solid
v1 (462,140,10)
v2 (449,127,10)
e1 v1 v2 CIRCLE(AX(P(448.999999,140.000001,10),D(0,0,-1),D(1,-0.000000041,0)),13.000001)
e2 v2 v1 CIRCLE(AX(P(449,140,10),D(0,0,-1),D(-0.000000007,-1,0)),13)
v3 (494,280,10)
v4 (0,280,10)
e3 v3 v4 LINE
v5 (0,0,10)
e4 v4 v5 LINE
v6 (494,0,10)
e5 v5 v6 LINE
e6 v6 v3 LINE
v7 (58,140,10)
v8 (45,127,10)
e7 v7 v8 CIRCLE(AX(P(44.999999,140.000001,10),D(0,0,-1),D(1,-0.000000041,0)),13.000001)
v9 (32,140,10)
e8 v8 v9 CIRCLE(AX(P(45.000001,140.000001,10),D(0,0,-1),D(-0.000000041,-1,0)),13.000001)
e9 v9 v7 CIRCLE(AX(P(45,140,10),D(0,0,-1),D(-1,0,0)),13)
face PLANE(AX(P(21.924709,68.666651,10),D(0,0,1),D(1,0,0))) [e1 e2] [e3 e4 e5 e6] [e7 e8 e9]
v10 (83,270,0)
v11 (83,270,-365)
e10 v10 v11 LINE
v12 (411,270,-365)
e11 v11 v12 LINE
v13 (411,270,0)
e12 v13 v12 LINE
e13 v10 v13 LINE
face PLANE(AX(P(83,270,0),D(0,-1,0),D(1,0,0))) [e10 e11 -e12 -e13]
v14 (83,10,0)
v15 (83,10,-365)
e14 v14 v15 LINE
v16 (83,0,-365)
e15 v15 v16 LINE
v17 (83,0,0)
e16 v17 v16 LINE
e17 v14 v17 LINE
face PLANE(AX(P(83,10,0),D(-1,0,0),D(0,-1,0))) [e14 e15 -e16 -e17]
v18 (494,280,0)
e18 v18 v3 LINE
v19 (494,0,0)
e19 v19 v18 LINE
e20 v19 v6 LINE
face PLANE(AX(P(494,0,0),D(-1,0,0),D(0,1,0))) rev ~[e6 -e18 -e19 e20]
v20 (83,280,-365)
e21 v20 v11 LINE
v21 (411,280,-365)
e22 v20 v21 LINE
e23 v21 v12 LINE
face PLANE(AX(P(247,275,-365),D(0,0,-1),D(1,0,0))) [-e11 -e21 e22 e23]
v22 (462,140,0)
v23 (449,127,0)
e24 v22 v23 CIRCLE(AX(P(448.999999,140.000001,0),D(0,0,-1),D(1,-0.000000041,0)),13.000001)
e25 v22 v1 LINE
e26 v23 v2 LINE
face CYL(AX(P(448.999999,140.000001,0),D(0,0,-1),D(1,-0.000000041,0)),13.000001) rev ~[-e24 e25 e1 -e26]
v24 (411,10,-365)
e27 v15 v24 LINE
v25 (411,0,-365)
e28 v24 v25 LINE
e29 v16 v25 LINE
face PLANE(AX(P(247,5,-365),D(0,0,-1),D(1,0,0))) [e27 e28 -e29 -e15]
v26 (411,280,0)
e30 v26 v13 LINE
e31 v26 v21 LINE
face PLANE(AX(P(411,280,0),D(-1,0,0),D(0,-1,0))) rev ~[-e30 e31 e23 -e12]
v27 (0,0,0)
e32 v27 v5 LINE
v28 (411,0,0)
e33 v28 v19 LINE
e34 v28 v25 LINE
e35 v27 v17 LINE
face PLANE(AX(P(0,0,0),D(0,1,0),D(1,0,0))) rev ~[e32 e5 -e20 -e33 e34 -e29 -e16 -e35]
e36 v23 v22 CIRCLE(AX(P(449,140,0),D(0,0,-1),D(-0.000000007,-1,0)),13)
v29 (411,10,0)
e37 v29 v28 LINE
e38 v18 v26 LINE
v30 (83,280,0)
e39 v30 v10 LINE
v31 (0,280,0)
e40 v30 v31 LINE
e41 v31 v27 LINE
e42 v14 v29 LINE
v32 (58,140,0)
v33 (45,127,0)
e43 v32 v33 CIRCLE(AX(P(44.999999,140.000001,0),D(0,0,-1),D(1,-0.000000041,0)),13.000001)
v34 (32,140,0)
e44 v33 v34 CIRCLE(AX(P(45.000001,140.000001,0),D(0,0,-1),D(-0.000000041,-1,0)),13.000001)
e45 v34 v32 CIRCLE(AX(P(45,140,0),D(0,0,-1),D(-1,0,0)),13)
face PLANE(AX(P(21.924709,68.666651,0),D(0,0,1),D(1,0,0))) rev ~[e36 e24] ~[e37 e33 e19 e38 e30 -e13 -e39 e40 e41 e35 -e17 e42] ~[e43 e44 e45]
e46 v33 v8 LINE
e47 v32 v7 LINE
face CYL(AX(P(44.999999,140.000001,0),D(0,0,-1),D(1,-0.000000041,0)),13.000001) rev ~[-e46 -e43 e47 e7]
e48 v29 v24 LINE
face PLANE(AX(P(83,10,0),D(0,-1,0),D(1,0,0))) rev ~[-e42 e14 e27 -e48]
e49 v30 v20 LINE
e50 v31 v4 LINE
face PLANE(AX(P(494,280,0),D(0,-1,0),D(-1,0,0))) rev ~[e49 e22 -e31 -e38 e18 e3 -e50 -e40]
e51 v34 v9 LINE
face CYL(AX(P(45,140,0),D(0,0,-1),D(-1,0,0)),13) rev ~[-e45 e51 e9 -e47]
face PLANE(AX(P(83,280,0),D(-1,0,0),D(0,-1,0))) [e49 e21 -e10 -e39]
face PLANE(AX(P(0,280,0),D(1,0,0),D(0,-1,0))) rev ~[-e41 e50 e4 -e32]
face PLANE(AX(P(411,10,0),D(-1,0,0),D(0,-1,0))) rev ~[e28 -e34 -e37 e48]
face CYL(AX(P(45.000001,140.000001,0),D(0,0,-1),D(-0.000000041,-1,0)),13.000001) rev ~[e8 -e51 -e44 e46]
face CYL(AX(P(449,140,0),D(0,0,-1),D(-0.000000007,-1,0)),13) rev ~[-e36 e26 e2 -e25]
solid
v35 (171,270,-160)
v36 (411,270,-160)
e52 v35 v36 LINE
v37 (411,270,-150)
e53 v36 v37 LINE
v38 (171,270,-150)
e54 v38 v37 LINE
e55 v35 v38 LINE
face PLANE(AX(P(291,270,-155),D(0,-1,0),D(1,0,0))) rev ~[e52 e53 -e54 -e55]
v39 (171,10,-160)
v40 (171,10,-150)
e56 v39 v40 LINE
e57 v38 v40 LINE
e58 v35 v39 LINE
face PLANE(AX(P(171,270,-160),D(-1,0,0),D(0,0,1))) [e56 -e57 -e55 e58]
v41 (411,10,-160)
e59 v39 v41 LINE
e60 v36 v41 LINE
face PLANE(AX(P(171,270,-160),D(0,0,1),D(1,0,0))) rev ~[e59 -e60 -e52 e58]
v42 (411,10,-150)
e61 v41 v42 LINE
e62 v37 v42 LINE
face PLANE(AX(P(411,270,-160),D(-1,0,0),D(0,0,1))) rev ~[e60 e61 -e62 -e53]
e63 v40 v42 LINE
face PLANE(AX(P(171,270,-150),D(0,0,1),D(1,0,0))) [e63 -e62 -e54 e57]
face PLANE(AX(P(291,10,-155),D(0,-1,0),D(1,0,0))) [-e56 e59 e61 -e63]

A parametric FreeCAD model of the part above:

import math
import FreeCAD as App
import Part
import Sketcher

V = App.Vector

doc = App.newDocument("Part")
body = doc.addObject("PartDesign::Body", "Body")

# Sketch on XY plane
sketch1 = doc.addObject("Sketcher::SketchObject", "Sketch")
body.addObject(sketch1)
sketch1.AttachmentSupport = (doc.XY_Plane, [""])
sketch1.MapMode = "FlatFace"
sketch1.addGeometry([
    Part.LineSegment(V(0, 0, 0), V(494, 0, 0)),  # 0
    Part.LineSegment(V(494, 0, 0), V(494, 280, 0)),  # 1
    Part.LineSegment(V(494, 280, 0), V(0, 280, 0)),  # 2
    Part.LineSegment(V(0, 280, 0), V(0, 0, 0)),  # 3
    Part.ArcOfCircle(Part.Circle(V(449, 140, 0), V(0, 0, 1), 13), math.radians(0), math.radians(270)),  # 4
    Part.ArcOfCircle(Part.Circle(V(448.999999, 140.000001, 0), V(0, 0, 1), 13.000001), math.radians(-89.999998), math.radians(-0.000002)),  # 5
    Part.ArcOfCircle(Part.Circle(V(45.000001, 140.000001, 0), V(0, 0, 1), 13.000001), math.radians(-179.999998), math.radians(-90.000002)),  # 6
    Part.ArcOfCircle(Part.Circle(V(45, 140, 0), V(0, 0, 1), 13), math.radians(0), math.radians(180)),  # 7
    Part.ArcOfCircle(Part.Circle(V(44.999999, 140.000001, 0), V(0, 0, 1), 13.000001), math.radians(-89.999998), math.radians(-0.000002)),  # 8
], False)
sketch1.addConstraint([
    Sketcher.Constraint("Coincident", 0, 2, 1, 1),
    Sketcher.Constraint("Coincident", 1, 2, 2, 1),
    Sketcher.Constraint("Coincident", 2, 2, 3, 1),
    Sketcher.Constraint("Coincident", 3, 2, 0, 1),
    Sketcher.Constraint("Tangent", 4, 1, 5, 2),
    Sketcher.Constraint("Coincident", 5, 1, 4, 2),
    Sketcher.Constraint("Tangent", 6, 1, 7, 2),
    Sketcher.Constraint("Tangent", 7, 1, 8, 2),
    Sketcher.Constraint("Tangent", 8, 1, 6, 2),
    Sketcher.Constraint("Horizontal", 0),
    Sketcher.Constraint("Vertical", 1),
    Sketcher.Constraint("Horizontal", 2),
    Sketcher.Constraint("Vertical", 3),
    Sketcher.Constraint("Coincident", 3, 2, -1, 1),
    Sketcher.Constraint("Equal", 5, 6),
    Sketcher.Constraint("Horizontal", 5, 3, 6, 3),
    Sketcher.Constraint("Horizontal", 8, 3, 4, 1),
    Sketcher.Constraint("Horizontal", 4, 1, 6, 1),
    Sketcher.Constraint("Horizontal", 6, 1, 7, 1),
    Sketcher.Constraint("Vertical", 4, 3, 5, 1),
    Sketcher.Constraint("Vertical", 7, 3, 8, 1),
    Sketcher.Constraint("Radius", 4, 13.0),
    Sketcher.Constraint("DistanceX", 0, 1, 0, 2, 494.0),
    Sketcher.Constraint("DistanceY", 1, 1, 1, 2, 280.0),
    Sketcher.Constraint("DistanceX", -1, 1, 4, 3, 449.0),
    Sketcher.Constraint("DistanceY", -1, 1, 4, 3, 140.0),
    Sketcher.Constraint("DistanceX", -1, 1, 6, 3, 45.000001),
])
pad1 = doc.addObject("PartDesign::Pad", "Pad")
body.addObject(pad1)
pad1.Profile = sketch1
pad1.Length = 10

# Sketch on XY plane
sketch2 = doc.addObject("Sketcher::SketchObject", "Sketch001")
body.addObject(sketch2)
sketch2.AttachmentSupport = (doc.XY_Plane, [""])
sketch2.MapMode = "FlatFace"
sketch2.addGeometry([
    Part.LineSegment(V(83, 270, 0), V(83, 280, 0)),  # 0
    Part.LineSegment(V(83, 280, 0), V(411, 280, 0)),  # 1
    Part.LineSegment(V(411, 280, 0), V(411, 270, 0)),  # 2
    Part.LineSegment(V(411, 270, 0), V(83, 270, 0)),  # 3
    Part.LineSegment(V(83, 0, 0), V(83, 10, 0)),  # 4
    Part.LineSegment(V(83, 10, 0), V(411, 10, 0)),  # 5
    Part.LineSegment(V(411, 10, 0), V(411, 0, 0)),  # 6
    Part.LineSegment(V(411, 0, 0), V(83, 0, 0)),  # 7
], False)
sketch2.addConstraint([
    Sketcher.Constraint("Coincident", 0, 2, 1, 1),
    Sketcher.Constraint("Coincident", 1, 2, 2, 1),
    Sketcher.Constraint("Coincident", 2, 2, 3, 1),
    Sketcher.Constraint("Coincident", 3, 2, 0, 1),
    Sketcher.Constraint("Coincident", 4, 2, 5, 1),
    Sketcher.Constraint("Coincident", 5, 2, 6, 1),
    Sketcher.Constraint("Coincident", 6, 2, 7, 1),
    Sketcher.Constraint("Coincident", 7, 2, 4, 1),
    Sketcher.Constraint("Vertical", 0),
    Sketcher.Constraint("Horizontal", 1),
    Sketcher.Constraint("Vertical", 2),
    Sketcher.Constraint("Horizontal", 3),
    Sketcher.Constraint("Vertical", 4),
    Sketcher.Constraint("Horizontal", 5),
    Sketcher.Constraint("Vertical", 6),
    Sketcher.Constraint("Horizontal", 7),
    Sketcher.Constraint("PointOnObject", 6, 2, -1),
    Sketcher.Constraint("Vertical", 3, 2, 4, 2),
    Sketcher.Constraint("Vertical", 2, 2, 5, 2),
    Sketcher.Constraint("Equal", 2, 4),
    Sketcher.Constraint("DistanceX", 1, 1, 1, 2, 328.0),
    Sketcher.Constraint("DistanceY", 0, 1, 0, 2, 10.0),
    Sketcher.Constraint("DistanceX", -1, 1, 0, 2, 83.0),
    Sketcher.Constraint("DistanceY", -1, 1, 0, 2, 280.0),
])
pad2 = doc.addObject("PartDesign::Pad", "Pad001")
body.addObject(pad2)
pad2.Profile = sketch2
pad2.Length = 365
pad2.Reversed = True
body2 = doc.addObject("PartDesign::Body", "Body001")

# Sketch on XZ plane
sketch3 = doc.addObject("Sketcher::SketchObject", "Sketch002")
body2.addObject(sketch3)
sketch3.AttachmentSupport = (doc.getObject("XZ_Plane001"), [""])
sketch3.MapMode = "FlatFace"
sketch3.AttachmentOffset = App.Placement(V(0, 0, -270), App.Rotation())
sketch3.addGeometry([
    Part.LineSegment(V(171, -150, 0), V(171, -160, 0)),
    Part.LineSegment(V(171, -160, 0), V(411, -160, 0)),
    Part.LineSegment(V(411, -160, 0), V(411, -150, 0)),
    Part.LineSegment(V(411, -150, 0), V(171, -150, 0)),
], False)
sketch3.addConstraint([
    Sketcher.Constraint("Coincident", 0, 2, 1, 1),
    Sketcher.Constraint("Coincident", 1, 2, 2, 1),
    Sketcher.Constraint("Coincident", 2, 2, 3, 1),
    Sketcher.Constraint("Coincident", 3, 2, 0, 1),
    Sketcher.Constraint("Vertical", 0),
    Sketcher.Constraint("Horizontal", 1),
    Sketcher.Constraint("Vertical", 2),
    Sketcher.Constraint("Horizontal", 3),
    Sketcher.Constraint("DistanceX", 1, 1, 1, 2, 240.0),
    Sketcher.Constraint("DistanceY", 0, 2, 0, 1, 10.0),
    Sketcher.Constraint("DistanceX", -1, 1, 0, 2, 171.0),
    Sketcher.Constraint("DistanceY", 0, 2, -1, 1, 160.0),
])
pad3 = doc.addObject("PartDesign::Pad", "Pad002")
body2.addObject(pad3)
pad3.Profile = sketch3
pad3.Length = 260

doc.recompute()
